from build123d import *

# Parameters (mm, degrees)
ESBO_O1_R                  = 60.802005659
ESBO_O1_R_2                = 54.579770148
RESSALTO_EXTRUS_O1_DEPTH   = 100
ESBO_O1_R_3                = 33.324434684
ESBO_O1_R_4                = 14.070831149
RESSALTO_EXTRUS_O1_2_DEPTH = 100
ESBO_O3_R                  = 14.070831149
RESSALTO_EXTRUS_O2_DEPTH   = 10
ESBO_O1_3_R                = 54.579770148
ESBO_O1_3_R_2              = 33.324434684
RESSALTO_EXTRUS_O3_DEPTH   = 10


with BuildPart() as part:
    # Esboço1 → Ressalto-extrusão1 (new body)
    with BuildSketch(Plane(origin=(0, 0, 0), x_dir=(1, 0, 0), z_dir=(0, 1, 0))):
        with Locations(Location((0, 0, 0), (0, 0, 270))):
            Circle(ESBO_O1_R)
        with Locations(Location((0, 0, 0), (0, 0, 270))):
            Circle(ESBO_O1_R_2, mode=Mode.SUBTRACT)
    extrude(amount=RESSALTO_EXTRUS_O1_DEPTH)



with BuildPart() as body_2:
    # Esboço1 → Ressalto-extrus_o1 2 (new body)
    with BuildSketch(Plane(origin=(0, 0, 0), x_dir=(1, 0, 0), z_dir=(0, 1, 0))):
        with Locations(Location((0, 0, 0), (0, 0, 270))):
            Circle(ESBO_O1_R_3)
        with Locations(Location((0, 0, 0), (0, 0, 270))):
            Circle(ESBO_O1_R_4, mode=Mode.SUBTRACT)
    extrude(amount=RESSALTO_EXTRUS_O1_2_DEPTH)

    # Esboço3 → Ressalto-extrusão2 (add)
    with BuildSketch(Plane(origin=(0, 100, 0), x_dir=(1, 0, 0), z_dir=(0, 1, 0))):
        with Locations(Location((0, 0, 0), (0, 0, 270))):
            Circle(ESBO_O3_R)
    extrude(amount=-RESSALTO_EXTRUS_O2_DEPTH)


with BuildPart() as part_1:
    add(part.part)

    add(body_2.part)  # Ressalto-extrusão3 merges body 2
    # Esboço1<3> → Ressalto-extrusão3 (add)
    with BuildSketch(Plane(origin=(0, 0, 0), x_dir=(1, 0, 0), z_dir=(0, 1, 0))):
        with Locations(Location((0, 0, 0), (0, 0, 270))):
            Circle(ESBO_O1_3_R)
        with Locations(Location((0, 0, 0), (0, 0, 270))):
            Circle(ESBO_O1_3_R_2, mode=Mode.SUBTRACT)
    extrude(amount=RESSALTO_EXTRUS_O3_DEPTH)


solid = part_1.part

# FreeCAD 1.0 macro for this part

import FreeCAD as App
import Part
import Sketcher

V = App.Vector

doc = App.newDocument("Part")
body = doc.addObject("PartDesign::Body", "Body")

# Sketch on XZ plane
sketch1 = body.newObject("Sketcher::SketchObject", "Sketch")
sketch1.AttachmentSupport = (doc.getObject("XZ_Plane"), [""])
sketch1.MapMode = "FlatFace"
sketch1.addGeometry([
    Part.Circle(V(0, 0, 0), V(0, 0, 1), 60.802006),
    Part.Circle(V(0, 0, 0), V(0, 0, 1), 54.57977),
], False)
sketch1.addConstraint([
    Sketcher.Constraint("Coincident", 0, 3, -1, 1),
    Sketcher.Constraint("Coincident", 1, 3, -1, 1),
    Sketcher.Constraint("Diameter", 0, 121.604011),
    Sketcher.Constraint("Diameter", 1, 109.15954),
])
pad1 = body.newObject("PartDesign::Pad", "Pad")
pad1.Profile = sketch1
pad1.Length = 100
pad1.Reversed = True
body2 = doc.addObject("PartDesign::Body", "Body001")

# Sketch on XZ plane
sketch2 = body2.newObject("Sketcher::SketchObject", "Sketch001")
sketch2.AttachmentSupport = (doc.getObject("XZ_Plane001"), [""])
sketch2.MapMode = "FlatFace"
sketch2.addGeometry([
    Part.Circle(V(0, 0, 0), V(0, 0, 1), 33.324435),
    Part.Circle(V(0, 0, 0), V(0, 0, 1), 14.070831),
], False)
sketch2.addConstraint([
    Sketcher.Constraint("Coincident", 0, 3, -1, 1),
    Sketcher.Constraint("Coincident", 1, 3, -1, 1),
    Sketcher.Constraint("Diameter", 0, 66.648869),
    Sketcher.Constraint("Diameter", 1, 28.141662),
])
pad2 = body2.newObject("PartDesign::Pad", "Pad001")
pad2.Profile = sketch2
pad2.Length = 100
pad2.Reversed = True

# Sketch on XZ plane
sketch3 = body2.newObject("Sketcher::SketchObject", "Sketch002")
sketch3.AttachmentSupport = (doc.getObject("XZ_Plane001"), [""])
sketch3.MapMode = "FlatFace"
sketch3.AttachmentOffset = App.Placement(V(0, 0, -100), App.Rotation())
sketch3.addGeometry(Part.Circle(V(0, 0, 0), V(0, 0, 1), 14.070831), False)
sketch3.addConstraint([
    Sketcher.Constraint("Coincident", 0, 3, -1, 1),
    Sketcher.Constraint("Diameter", 0, 28.141662),
])
pad3 = body2.newObject("PartDesign::Pad", "Pad002")
pad3.Profile = sketch3
pad3.Length = 10
body.AllowCompound = True
doc.recompute()

boolean = body.newObject("PartDesign::Boolean", "Boolean")
boolean.Type = "Fuse"
boolean.addObjects([body2])

# Sketch on XZ plane
sketch4 = body.newObject("Sketcher::SketchObject", "Sketch003")
sketch4.AttachmentSupport = (doc.getObject("XZ_Plane"), [""])
sketch4.MapMode = "FlatFace"
sketch4.addGeometry([
    Part.Circle(V(0, 0, 0), V(0, 0, 1), 54.57977),
    Part.Circle(V(0, 0, 0), V(0, 0, 1), 33.324435),
], False)
sketch4.addConstraint([
    Sketcher.Constraint("Coincident", 0, 3, -1, 1),
    Sketcher.Constraint("Coincident", 1, 3, -1, 1),
    Sketcher.Constraint("Diameter", 0, 109.15954),
    Sketcher.Constraint("Diameter", 1, 66.648869),
])
pad4 = body.newObject("PartDesign::Pad", "Pad003")
pad4.Profile = sketch4
pad4.Length = 10
pad4.Reversed = True

doc.recompute()
